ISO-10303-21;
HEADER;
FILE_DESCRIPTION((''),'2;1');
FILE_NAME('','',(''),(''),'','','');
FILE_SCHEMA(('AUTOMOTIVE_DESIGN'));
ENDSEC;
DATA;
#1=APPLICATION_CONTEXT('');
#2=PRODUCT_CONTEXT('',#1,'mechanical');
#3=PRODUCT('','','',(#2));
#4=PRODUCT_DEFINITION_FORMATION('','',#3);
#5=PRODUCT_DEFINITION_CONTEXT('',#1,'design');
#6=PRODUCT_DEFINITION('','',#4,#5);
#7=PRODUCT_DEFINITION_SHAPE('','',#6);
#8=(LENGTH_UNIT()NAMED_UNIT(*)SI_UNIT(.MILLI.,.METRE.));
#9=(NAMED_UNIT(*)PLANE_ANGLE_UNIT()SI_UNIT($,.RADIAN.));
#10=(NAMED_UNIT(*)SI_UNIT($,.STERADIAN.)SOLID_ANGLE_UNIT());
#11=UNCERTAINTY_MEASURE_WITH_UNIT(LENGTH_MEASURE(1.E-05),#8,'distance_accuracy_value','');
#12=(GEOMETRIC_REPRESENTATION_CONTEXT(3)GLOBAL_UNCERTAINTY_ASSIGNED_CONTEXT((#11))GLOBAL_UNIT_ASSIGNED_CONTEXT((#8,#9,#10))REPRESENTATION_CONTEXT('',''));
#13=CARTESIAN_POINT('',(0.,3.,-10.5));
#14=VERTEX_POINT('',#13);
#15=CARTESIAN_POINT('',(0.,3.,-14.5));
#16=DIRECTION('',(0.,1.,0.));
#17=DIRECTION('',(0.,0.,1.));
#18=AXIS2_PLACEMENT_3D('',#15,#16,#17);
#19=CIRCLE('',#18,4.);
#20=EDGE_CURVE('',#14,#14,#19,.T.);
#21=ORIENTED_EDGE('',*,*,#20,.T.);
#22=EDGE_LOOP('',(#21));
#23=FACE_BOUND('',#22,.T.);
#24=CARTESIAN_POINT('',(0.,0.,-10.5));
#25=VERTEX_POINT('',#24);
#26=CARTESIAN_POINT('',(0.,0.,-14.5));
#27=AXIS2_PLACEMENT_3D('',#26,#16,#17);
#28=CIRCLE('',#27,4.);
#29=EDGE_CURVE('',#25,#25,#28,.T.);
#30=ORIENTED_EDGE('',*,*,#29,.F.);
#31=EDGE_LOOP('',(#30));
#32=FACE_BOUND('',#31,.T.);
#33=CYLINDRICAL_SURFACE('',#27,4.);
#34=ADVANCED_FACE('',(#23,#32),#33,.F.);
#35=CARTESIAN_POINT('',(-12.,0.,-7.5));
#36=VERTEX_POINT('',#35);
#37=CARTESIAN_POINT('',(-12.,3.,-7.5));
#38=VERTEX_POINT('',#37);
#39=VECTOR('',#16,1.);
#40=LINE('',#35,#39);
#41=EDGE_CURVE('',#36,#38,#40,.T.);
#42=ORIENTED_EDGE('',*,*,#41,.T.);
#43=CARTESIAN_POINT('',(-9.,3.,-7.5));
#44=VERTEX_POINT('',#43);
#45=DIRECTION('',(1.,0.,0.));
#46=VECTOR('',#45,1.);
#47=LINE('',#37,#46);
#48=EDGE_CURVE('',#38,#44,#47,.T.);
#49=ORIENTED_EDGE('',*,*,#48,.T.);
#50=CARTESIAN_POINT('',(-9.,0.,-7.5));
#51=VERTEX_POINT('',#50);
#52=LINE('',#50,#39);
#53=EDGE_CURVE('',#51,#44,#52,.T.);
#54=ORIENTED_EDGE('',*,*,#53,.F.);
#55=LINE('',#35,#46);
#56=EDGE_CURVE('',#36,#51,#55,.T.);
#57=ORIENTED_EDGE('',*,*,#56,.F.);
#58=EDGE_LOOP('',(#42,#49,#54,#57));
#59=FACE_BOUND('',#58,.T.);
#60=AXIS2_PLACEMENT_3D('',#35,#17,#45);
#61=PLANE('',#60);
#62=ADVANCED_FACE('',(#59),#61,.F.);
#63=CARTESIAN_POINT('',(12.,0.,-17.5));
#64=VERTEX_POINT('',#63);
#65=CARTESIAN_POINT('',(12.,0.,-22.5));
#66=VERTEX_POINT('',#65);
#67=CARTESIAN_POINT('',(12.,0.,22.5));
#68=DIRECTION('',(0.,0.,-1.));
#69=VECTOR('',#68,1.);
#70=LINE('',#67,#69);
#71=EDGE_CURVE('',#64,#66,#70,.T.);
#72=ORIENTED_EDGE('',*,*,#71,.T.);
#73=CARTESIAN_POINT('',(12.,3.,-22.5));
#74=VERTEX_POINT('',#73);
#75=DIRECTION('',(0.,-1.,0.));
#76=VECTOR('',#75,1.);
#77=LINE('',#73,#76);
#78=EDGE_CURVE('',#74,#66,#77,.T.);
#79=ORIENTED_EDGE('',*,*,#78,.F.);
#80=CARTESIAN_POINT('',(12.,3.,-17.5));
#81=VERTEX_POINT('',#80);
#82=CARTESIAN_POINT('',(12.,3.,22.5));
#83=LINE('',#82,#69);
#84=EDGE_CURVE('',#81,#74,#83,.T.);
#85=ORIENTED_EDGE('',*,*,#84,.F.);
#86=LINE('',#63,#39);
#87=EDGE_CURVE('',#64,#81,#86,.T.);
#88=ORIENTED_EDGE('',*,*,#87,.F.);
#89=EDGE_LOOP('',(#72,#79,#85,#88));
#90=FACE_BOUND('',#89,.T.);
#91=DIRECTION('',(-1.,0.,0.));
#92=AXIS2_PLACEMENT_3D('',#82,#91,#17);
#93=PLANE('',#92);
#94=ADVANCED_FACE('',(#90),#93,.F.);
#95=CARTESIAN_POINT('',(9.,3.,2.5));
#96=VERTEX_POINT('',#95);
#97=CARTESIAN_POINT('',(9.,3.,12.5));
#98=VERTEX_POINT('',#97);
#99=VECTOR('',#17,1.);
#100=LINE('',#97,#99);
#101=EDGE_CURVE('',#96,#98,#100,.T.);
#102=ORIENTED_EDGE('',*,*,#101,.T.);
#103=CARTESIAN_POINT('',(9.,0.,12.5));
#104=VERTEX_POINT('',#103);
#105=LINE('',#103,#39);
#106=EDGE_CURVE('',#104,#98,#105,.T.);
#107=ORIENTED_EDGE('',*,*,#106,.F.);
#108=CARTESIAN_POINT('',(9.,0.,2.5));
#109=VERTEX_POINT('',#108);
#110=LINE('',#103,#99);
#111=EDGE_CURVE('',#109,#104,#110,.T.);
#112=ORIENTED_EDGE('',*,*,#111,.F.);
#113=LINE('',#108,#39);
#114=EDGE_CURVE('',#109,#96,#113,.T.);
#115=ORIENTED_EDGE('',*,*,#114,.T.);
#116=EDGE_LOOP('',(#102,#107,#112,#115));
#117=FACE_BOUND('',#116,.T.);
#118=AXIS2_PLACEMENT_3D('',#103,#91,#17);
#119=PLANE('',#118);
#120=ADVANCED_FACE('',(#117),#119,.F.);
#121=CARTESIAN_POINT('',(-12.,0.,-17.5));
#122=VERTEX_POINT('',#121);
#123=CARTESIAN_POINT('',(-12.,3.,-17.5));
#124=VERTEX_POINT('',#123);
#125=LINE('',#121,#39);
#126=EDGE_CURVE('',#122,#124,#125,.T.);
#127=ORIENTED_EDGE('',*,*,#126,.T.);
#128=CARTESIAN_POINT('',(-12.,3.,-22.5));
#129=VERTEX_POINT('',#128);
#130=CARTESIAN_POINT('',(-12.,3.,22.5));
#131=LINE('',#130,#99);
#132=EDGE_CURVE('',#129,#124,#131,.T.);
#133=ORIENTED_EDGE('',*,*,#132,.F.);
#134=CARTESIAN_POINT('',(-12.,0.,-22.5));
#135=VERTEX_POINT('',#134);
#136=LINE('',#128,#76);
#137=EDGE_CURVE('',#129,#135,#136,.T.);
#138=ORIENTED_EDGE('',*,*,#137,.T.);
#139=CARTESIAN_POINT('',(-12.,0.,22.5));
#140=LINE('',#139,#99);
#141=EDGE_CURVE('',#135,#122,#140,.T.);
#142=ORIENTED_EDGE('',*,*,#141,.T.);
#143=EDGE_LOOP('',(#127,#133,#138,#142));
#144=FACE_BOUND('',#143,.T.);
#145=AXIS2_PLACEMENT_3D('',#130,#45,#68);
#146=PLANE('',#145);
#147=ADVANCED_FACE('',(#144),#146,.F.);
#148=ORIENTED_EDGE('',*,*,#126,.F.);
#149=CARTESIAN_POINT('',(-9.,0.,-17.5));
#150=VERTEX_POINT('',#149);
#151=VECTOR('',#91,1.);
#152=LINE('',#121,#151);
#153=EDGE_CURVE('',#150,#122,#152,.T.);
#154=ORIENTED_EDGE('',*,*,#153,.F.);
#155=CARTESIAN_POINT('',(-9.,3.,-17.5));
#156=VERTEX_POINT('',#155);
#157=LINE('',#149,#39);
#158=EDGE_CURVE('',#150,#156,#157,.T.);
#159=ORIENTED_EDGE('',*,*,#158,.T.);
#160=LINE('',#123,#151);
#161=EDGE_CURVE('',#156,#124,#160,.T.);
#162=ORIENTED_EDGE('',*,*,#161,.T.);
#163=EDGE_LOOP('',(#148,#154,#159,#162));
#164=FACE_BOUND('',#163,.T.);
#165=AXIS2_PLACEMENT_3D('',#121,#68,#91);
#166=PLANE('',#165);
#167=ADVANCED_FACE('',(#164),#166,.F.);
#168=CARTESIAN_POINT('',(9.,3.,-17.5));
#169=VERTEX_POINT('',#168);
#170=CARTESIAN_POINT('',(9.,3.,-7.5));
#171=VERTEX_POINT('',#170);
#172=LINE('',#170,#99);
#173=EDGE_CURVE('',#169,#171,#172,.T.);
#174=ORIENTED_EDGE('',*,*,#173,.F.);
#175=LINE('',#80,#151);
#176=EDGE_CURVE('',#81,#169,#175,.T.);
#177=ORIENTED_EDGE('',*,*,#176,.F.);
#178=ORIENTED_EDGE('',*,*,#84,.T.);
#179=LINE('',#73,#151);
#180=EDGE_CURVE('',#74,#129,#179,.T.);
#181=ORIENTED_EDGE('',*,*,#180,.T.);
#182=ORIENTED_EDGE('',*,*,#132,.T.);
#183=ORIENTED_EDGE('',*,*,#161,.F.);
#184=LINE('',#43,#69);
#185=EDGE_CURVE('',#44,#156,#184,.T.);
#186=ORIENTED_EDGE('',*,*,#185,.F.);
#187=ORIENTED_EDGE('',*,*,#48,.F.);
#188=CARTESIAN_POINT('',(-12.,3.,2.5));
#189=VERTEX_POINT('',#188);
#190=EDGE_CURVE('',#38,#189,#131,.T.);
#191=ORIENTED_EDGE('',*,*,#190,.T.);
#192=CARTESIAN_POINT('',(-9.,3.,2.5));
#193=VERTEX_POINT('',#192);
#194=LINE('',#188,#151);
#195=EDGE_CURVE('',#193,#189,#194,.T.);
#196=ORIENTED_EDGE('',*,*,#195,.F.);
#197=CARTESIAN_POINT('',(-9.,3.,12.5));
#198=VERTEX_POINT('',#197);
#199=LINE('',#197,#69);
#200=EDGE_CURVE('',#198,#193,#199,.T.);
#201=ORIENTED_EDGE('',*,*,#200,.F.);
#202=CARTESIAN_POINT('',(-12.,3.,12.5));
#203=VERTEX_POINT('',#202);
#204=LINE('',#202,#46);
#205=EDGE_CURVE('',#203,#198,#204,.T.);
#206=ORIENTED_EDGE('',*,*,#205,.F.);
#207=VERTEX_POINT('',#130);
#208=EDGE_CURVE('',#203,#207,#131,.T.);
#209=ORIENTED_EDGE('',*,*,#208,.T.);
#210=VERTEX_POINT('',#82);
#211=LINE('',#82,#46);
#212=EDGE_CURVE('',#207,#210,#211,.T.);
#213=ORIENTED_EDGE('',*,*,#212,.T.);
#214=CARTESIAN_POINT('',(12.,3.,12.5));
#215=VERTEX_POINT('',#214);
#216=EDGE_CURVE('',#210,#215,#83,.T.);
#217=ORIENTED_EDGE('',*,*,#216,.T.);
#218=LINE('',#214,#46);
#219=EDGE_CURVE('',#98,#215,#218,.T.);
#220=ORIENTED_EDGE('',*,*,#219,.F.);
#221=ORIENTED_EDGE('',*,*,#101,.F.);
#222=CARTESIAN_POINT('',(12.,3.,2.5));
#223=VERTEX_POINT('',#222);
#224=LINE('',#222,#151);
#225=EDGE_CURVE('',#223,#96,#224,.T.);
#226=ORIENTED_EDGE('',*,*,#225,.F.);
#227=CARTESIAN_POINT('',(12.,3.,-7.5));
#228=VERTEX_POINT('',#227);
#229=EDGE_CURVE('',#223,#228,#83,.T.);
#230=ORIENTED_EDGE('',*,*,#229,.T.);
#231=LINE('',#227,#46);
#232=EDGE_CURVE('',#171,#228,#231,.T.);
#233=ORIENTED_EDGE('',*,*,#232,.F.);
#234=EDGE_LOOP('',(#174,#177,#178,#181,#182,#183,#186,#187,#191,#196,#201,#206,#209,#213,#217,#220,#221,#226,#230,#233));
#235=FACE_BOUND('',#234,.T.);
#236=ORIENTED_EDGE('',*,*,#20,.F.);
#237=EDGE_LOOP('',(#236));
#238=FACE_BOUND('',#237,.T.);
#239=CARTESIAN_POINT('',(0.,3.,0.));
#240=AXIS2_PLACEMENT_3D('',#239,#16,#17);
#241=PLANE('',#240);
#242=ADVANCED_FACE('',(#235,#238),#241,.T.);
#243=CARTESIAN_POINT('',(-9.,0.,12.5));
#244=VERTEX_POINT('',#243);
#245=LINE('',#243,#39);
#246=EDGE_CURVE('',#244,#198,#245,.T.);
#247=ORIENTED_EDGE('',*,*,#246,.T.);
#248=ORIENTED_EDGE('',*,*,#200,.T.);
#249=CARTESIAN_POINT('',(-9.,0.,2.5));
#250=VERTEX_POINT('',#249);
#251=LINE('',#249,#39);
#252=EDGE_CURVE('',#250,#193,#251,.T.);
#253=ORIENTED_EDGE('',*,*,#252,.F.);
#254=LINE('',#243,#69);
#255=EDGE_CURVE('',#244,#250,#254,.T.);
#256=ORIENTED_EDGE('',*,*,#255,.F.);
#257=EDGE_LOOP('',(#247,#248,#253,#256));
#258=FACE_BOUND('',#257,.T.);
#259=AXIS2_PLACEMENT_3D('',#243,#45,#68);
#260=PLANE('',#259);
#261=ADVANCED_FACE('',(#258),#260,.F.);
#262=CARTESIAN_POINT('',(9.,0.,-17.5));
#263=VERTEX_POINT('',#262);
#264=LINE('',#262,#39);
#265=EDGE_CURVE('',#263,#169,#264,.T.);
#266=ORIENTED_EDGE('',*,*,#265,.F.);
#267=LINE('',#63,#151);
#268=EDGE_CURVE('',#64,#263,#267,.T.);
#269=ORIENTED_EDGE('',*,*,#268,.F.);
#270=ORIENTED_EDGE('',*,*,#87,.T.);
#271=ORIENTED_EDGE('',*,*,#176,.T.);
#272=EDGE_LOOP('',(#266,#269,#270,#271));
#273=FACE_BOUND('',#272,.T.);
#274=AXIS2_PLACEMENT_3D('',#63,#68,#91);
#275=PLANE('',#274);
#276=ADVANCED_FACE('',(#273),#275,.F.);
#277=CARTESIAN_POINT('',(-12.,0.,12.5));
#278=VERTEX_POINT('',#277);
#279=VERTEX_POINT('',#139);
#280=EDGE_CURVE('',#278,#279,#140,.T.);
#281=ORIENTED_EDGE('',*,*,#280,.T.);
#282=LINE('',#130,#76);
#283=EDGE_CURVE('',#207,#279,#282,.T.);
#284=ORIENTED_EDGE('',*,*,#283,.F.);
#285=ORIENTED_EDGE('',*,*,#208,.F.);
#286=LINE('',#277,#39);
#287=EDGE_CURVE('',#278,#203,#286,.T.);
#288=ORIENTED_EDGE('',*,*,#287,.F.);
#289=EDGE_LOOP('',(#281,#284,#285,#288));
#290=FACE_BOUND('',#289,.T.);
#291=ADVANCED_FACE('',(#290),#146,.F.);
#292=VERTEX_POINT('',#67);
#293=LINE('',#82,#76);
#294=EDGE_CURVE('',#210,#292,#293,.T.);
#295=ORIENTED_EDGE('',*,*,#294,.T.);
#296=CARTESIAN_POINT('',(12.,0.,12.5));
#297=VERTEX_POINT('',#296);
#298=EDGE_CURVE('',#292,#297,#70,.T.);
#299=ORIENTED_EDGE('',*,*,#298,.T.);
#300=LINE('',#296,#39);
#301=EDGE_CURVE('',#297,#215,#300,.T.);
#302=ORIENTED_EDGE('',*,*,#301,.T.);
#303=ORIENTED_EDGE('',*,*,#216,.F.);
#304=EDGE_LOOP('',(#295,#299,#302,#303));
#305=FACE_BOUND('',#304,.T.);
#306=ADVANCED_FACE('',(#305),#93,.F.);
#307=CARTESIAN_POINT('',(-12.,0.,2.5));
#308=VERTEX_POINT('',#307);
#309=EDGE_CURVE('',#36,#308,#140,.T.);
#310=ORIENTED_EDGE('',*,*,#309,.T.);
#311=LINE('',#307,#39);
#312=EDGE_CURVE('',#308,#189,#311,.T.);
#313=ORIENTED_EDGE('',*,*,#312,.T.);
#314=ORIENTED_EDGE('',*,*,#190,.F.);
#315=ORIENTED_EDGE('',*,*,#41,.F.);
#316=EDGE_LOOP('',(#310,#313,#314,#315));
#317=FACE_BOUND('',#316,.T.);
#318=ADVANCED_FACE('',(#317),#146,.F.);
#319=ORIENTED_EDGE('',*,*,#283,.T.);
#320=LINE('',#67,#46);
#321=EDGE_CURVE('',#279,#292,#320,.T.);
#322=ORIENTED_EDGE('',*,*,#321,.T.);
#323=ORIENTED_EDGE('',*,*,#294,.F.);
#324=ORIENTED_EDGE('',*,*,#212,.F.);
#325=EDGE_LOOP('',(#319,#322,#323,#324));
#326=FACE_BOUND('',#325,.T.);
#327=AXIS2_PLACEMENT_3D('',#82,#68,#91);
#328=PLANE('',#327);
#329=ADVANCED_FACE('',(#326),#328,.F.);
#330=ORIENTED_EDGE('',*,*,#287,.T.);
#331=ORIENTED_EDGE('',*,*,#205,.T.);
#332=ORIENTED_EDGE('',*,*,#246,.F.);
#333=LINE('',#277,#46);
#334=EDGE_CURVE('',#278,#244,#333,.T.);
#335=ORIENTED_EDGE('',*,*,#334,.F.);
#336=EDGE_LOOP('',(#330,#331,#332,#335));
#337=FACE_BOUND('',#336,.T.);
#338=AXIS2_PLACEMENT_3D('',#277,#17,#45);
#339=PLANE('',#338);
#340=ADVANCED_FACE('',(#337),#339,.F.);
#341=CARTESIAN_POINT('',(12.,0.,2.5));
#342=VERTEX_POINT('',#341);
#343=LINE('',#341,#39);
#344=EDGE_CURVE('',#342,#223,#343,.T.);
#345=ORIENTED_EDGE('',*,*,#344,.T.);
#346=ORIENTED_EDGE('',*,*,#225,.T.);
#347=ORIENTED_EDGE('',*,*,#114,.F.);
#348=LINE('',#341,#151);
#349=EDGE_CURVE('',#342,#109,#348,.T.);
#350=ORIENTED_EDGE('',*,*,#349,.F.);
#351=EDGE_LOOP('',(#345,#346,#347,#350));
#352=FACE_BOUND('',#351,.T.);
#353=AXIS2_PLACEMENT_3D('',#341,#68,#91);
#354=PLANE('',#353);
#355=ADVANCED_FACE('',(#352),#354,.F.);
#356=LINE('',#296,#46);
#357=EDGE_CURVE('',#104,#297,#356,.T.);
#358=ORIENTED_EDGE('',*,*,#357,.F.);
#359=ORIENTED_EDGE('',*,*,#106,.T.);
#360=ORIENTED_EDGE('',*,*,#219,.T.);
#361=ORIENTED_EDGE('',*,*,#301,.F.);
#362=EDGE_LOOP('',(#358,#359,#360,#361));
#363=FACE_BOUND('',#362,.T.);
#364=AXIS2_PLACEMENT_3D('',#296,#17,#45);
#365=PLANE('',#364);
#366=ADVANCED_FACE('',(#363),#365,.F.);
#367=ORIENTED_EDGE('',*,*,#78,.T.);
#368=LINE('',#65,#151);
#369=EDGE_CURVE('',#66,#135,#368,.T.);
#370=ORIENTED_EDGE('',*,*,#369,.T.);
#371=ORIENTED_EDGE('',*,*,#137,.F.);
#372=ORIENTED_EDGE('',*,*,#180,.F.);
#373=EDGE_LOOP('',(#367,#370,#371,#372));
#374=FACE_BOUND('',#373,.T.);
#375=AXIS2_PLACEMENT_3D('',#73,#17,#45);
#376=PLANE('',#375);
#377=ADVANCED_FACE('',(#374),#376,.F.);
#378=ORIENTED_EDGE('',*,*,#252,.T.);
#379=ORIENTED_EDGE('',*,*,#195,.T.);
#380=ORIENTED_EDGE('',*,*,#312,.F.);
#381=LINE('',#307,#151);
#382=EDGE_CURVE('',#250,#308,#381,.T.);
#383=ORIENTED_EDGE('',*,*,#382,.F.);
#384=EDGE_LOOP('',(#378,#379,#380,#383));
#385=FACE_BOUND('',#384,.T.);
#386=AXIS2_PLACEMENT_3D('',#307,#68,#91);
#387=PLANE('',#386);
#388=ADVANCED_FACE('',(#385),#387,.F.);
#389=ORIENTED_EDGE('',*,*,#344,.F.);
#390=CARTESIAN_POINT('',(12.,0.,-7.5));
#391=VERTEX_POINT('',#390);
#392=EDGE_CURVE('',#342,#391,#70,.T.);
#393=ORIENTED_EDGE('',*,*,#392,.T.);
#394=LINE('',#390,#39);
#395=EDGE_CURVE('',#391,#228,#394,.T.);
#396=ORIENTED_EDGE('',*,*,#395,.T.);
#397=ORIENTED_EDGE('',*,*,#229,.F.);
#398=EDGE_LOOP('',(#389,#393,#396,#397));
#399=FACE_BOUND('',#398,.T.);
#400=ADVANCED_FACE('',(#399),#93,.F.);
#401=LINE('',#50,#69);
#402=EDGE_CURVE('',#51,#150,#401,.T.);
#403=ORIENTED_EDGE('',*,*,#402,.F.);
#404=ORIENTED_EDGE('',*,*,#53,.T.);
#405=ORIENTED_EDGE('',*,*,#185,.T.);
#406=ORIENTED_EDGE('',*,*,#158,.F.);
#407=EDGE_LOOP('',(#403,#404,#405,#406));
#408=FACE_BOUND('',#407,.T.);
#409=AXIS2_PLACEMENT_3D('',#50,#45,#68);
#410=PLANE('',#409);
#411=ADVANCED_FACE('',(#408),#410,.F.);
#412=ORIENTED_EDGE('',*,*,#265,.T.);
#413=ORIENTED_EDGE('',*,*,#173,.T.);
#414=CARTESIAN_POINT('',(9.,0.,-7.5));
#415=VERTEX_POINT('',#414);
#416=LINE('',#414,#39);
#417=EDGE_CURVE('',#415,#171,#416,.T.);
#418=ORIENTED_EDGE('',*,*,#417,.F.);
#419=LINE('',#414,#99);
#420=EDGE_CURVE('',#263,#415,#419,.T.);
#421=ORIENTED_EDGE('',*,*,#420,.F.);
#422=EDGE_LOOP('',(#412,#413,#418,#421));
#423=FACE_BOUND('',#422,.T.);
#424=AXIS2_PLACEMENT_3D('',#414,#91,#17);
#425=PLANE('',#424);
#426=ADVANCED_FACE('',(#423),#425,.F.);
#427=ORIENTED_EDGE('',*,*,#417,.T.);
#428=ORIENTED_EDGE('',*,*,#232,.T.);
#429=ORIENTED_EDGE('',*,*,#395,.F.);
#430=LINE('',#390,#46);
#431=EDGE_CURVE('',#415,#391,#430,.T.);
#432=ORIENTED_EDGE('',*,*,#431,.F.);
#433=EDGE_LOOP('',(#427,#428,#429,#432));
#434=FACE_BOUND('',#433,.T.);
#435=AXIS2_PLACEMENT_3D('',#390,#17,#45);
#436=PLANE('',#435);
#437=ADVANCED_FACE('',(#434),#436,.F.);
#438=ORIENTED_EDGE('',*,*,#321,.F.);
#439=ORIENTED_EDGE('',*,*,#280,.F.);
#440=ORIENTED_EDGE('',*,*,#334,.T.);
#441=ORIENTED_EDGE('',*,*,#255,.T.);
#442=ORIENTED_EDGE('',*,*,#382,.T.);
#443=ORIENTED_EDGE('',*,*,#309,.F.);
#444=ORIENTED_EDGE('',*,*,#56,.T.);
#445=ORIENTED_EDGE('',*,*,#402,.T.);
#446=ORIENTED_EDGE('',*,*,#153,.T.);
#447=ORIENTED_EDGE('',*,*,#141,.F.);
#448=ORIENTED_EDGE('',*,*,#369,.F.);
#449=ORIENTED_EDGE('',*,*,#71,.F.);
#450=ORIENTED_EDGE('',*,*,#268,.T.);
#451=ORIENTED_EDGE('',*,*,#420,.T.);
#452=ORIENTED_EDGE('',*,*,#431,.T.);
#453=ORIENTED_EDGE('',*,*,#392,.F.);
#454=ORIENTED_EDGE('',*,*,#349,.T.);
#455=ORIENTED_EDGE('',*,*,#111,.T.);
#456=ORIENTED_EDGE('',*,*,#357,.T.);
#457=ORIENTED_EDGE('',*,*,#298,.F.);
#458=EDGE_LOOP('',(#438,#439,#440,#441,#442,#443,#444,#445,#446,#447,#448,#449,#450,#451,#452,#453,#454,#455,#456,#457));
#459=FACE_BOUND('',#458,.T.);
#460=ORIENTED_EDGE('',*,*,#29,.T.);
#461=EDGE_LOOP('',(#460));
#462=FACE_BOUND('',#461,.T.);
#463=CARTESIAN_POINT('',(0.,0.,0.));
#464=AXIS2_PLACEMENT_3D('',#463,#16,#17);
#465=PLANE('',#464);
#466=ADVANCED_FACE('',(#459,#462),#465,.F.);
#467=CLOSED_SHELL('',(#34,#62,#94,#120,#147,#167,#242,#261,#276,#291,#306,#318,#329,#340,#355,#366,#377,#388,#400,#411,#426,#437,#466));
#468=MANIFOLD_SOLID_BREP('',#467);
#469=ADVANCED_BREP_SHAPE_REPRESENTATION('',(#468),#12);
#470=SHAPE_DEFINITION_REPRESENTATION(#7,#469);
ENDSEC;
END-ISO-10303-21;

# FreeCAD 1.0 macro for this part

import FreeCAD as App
import Part
import Sketcher

V = App.Vector
Q = App.Units.Quantity

doc = App.newDocument("Part")
body = doc.addObject("PartDesign::Body", "Body")

# Sketch on XZ plane
sketch1 = doc.addObject("Sketcher::SketchObject", "Sketch")
body.addObject(sketch1)
sketch1.AttachmentSupport = (doc.XZ_Plane, [""])
sketch1.MapMode = "FlatFace"
sketch1.addGeometry([
    Part.LineSegment(V(-12, -22, 0), V(-12, 22, 0)),
    Part.LineSegment(V(-12, 22, 0), V(12, 22, 0)),
    Part.LineSegment(V(12, 22, 0), V(12, -22, 0)),
    Part.LineSegment(V(12, -22, 0), V(-12, -22, 0)),
], False)
sketch1.addConstraint([
    Sketcher.Constraint("Coincident", 0, 2, 1, 1),
    Sketcher.Constraint("Coincident", 1, 2, 2, 1),
    Sketcher.Constraint("Coincident", 2, 2, 3, 1),
    Sketcher.Constraint("Coincident", 3, 2, 0, 1),
    Sketcher.Constraint("Vertical", 0),
    Sketcher.Constraint("Horizontal", 1),
    Sketcher.Constraint("Vertical", 2),
    Sketcher.Constraint("Horizontal", 3),
    Sketcher.Constraint("Symmetric", 0, 2, 2, 2, -1, 1),
    Sketcher.Constraint("DistanceX", 1, 1, 1, 2, Q("24 mm")),
    Sketcher.Constraint("DistanceY", 0, 1, 0, 2, Q("45 mm")),
])
pad1 = doc.addObject("PartDesign::Pad", "Pad")
body.addObject(pad1)
pad1.Profile = sketch1
pad1.Length = 3
pad1.Reversed = True

# Sketch on XZ plane
sketch2 = doc.addObject("Sketcher::SketchObject", "Sketch001")
body.addObject(sketch2)
sketch2.AttachmentSupport = (doc.XZ_Plane, [""])
sketch2.MapMode = "FlatFace"
sketch2.AttachmentOffset = App.Placement(V(0, 0, -3), App.Rotation())
sketch2.addGeometry([
    Part.Circle(V(0, -14.5, 0), V(0, 0, 1), 4),  # 0
    Part.LineSegment(V(-12, 2.5, 0), V(-12, 12.5, 0)),  # 1
    Part.LineSegment(V(-12, 12.5, 0), V(-9, 12.5, 0)),  # 2
    Part.LineSegment(V(-9, 12.5, 0), V(-9, 2.5, 0)),  # 3
    Part.LineSegment(V(-9, 2.5, 0), V(-12, 2.5, 0)),  # 4
    Part.LineSegment(V(-12, -17.5, 0), V(-12, -7.5, 0)),  # 5
    Part.LineSegment(V(-12, -7.5, 0), V(-9, -7.5, 0)),  # 6
    Part.LineSegment(V(-9, -7.5, 0), V(-9, -17.5, 0)),  # 7
    Part.LineSegment(V(-9, -17.5, 0), V(-12, -17.5, 0)),  # 8
    Part.LineSegment(V(9, -17.5, 0), V(9, -7.5, 0)),  # 9
    Part.LineSegment(V(9, -7.5, 0), V(12, -7.5, 0)),  # 10
    Part.LineSegment(V(12, -7.5, 0), V(12, -17.5, 0)),  # 11
    Part.LineSegment(V(12, -17.5, 0), V(9, -17.5, 0)),  # 12
    Part.LineSegment(V(9, 2.5, 0), V(9, 12.5, 0)),  # 13
    Part.LineSegment(V(9, 12.5, 0), V(12, 12.5, 0)),  # 14
    Part.LineSegment(V(12, 12.5, 0), V(12, 2.5, 0)),  # 15
    Part.LineSegment(V(12, 2.5, 0), V(9, 2.5, 0)),  # 16
], False)
sketch2.addConstraint([
    Sketcher.Constraint("Coincident", 1, 2, 2, 1),
    Sketcher.Constraint("Coincident", 2, 2, 3, 1),
    Sketcher.Constraint("Coincident", 3, 2, 4, 1),
    Sketcher.Constraint("Coincident", 4, 2, 1, 1),
    Sketcher.Constraint("Coincident", 5, 2, 6, 1),
    Sketcher.Constraint("Coincident", 6, 2, 7, 1),
    Sketcher.Constraint("Coincident", 7, 2, 8, 1),
    Sketcher.Constraint("Coincident", 8, 2, 5, 1),
    Sketcher.Constraint("Coincident", 9, 2, 10, 1),
    Sketcher.Constraint("Coincident", 10, 2, 11, 1),
    Sketcher.Constraint("Coincident", 11, 2, 12, 1),
    Sketcher.Constraint("Coincident", 12, 2, 9, 1),
    Sketcher.Constraint("Coincident", 13, 2, 14, 1),
    Sketcher.Constraint("Coincident", 14, 2, 15, 1),
    Sketcher.Constraint("Coincident", 15, 2, 16, 1),
    Sketcher.Constraint("Coincident", 16, 2, 13, 1),
    Sketcher.Constraint("Vertical", 1),
    Sketcher.Constraint("Horizontal", 2),
    Sketcher.Constraint("Vertical", 3),
    Sketcher.Constraint("Horizontal", 4),
    Sketcher.Constraint("Vertical", 5),
    Sketcher.Constraint("Horizontal", 6),
    Sketcher.Constraint("Vertical", 7),
    Sketcher.Constraint("Horizontal", 8),
    Sketcher.Constraint("Vertical", 9),
    Sketcher.Constraint("Horizontal", 10),
    Sketcher.Constraint("Vertical", 11),
    Sketcher.Constraint("Horizontal", 12),
    Sketcher.Constraint("Vertical", 13),
    Sketcher.Constraint("Horizontal", 14),
    Sketcher.Constraint("Vertical", 15),
    Sketcher.Constraint("Horizontal", 16),
    Sketcher.Constraint("Symmetric", 6, 2, 9, 2, -2),
    Sketcher.Constraint("Symmetric", 8, 2, 11, 2, -2),
    Sketcher.Constraint("Symmetric", 2, 2, 13, 2, -2),
    Sketcher.Constraint("Symmetric", 4, 2, 15, 2, -2),
    Sketcher.Constraint("PointOnObject", 0, 3, -2),
    Sketcher.Constraint("Vertical", 4, 2, 5, 2),
    Sketcher.Constraint("Vertical", 3, 2, 6, 2),
    Sketcher.Constraint("Equal", 3, 5),
    Sketcher.Constraint("Diameter", 0, Q("8 mm")),
    Sketcher.Constraint("DistanceX", 2, 1, 2, 2, Q("3 mm")),
    Sketcher.Constraint("DistanceY", 1, 1, 1, 2, Q("10 mm")),
    Sketcher.Constraint("DistanceX", 1, 2, -1, 1, Q("12 mm")),
    Sketcher.Constraint("DistanceY", 0, 3, 1, 2, Q("27 mm")),
    Sketcher.Constraint("DistanceY", 5, 2, 4, 2, Q("10 mm")),
    Sketcher.Constraint("DistanceY", 0, 3, -1, 1, Q("14.5 mm")),
])
pocket1 = doc.addObject("PartDesign::Pocket", "Pocket")
body.addObject(pocket1)
pocket1.Profile = sketch2
pocket1.Type = "ThroughAll"
pocket1.Reversed = True

doc.recompute()
